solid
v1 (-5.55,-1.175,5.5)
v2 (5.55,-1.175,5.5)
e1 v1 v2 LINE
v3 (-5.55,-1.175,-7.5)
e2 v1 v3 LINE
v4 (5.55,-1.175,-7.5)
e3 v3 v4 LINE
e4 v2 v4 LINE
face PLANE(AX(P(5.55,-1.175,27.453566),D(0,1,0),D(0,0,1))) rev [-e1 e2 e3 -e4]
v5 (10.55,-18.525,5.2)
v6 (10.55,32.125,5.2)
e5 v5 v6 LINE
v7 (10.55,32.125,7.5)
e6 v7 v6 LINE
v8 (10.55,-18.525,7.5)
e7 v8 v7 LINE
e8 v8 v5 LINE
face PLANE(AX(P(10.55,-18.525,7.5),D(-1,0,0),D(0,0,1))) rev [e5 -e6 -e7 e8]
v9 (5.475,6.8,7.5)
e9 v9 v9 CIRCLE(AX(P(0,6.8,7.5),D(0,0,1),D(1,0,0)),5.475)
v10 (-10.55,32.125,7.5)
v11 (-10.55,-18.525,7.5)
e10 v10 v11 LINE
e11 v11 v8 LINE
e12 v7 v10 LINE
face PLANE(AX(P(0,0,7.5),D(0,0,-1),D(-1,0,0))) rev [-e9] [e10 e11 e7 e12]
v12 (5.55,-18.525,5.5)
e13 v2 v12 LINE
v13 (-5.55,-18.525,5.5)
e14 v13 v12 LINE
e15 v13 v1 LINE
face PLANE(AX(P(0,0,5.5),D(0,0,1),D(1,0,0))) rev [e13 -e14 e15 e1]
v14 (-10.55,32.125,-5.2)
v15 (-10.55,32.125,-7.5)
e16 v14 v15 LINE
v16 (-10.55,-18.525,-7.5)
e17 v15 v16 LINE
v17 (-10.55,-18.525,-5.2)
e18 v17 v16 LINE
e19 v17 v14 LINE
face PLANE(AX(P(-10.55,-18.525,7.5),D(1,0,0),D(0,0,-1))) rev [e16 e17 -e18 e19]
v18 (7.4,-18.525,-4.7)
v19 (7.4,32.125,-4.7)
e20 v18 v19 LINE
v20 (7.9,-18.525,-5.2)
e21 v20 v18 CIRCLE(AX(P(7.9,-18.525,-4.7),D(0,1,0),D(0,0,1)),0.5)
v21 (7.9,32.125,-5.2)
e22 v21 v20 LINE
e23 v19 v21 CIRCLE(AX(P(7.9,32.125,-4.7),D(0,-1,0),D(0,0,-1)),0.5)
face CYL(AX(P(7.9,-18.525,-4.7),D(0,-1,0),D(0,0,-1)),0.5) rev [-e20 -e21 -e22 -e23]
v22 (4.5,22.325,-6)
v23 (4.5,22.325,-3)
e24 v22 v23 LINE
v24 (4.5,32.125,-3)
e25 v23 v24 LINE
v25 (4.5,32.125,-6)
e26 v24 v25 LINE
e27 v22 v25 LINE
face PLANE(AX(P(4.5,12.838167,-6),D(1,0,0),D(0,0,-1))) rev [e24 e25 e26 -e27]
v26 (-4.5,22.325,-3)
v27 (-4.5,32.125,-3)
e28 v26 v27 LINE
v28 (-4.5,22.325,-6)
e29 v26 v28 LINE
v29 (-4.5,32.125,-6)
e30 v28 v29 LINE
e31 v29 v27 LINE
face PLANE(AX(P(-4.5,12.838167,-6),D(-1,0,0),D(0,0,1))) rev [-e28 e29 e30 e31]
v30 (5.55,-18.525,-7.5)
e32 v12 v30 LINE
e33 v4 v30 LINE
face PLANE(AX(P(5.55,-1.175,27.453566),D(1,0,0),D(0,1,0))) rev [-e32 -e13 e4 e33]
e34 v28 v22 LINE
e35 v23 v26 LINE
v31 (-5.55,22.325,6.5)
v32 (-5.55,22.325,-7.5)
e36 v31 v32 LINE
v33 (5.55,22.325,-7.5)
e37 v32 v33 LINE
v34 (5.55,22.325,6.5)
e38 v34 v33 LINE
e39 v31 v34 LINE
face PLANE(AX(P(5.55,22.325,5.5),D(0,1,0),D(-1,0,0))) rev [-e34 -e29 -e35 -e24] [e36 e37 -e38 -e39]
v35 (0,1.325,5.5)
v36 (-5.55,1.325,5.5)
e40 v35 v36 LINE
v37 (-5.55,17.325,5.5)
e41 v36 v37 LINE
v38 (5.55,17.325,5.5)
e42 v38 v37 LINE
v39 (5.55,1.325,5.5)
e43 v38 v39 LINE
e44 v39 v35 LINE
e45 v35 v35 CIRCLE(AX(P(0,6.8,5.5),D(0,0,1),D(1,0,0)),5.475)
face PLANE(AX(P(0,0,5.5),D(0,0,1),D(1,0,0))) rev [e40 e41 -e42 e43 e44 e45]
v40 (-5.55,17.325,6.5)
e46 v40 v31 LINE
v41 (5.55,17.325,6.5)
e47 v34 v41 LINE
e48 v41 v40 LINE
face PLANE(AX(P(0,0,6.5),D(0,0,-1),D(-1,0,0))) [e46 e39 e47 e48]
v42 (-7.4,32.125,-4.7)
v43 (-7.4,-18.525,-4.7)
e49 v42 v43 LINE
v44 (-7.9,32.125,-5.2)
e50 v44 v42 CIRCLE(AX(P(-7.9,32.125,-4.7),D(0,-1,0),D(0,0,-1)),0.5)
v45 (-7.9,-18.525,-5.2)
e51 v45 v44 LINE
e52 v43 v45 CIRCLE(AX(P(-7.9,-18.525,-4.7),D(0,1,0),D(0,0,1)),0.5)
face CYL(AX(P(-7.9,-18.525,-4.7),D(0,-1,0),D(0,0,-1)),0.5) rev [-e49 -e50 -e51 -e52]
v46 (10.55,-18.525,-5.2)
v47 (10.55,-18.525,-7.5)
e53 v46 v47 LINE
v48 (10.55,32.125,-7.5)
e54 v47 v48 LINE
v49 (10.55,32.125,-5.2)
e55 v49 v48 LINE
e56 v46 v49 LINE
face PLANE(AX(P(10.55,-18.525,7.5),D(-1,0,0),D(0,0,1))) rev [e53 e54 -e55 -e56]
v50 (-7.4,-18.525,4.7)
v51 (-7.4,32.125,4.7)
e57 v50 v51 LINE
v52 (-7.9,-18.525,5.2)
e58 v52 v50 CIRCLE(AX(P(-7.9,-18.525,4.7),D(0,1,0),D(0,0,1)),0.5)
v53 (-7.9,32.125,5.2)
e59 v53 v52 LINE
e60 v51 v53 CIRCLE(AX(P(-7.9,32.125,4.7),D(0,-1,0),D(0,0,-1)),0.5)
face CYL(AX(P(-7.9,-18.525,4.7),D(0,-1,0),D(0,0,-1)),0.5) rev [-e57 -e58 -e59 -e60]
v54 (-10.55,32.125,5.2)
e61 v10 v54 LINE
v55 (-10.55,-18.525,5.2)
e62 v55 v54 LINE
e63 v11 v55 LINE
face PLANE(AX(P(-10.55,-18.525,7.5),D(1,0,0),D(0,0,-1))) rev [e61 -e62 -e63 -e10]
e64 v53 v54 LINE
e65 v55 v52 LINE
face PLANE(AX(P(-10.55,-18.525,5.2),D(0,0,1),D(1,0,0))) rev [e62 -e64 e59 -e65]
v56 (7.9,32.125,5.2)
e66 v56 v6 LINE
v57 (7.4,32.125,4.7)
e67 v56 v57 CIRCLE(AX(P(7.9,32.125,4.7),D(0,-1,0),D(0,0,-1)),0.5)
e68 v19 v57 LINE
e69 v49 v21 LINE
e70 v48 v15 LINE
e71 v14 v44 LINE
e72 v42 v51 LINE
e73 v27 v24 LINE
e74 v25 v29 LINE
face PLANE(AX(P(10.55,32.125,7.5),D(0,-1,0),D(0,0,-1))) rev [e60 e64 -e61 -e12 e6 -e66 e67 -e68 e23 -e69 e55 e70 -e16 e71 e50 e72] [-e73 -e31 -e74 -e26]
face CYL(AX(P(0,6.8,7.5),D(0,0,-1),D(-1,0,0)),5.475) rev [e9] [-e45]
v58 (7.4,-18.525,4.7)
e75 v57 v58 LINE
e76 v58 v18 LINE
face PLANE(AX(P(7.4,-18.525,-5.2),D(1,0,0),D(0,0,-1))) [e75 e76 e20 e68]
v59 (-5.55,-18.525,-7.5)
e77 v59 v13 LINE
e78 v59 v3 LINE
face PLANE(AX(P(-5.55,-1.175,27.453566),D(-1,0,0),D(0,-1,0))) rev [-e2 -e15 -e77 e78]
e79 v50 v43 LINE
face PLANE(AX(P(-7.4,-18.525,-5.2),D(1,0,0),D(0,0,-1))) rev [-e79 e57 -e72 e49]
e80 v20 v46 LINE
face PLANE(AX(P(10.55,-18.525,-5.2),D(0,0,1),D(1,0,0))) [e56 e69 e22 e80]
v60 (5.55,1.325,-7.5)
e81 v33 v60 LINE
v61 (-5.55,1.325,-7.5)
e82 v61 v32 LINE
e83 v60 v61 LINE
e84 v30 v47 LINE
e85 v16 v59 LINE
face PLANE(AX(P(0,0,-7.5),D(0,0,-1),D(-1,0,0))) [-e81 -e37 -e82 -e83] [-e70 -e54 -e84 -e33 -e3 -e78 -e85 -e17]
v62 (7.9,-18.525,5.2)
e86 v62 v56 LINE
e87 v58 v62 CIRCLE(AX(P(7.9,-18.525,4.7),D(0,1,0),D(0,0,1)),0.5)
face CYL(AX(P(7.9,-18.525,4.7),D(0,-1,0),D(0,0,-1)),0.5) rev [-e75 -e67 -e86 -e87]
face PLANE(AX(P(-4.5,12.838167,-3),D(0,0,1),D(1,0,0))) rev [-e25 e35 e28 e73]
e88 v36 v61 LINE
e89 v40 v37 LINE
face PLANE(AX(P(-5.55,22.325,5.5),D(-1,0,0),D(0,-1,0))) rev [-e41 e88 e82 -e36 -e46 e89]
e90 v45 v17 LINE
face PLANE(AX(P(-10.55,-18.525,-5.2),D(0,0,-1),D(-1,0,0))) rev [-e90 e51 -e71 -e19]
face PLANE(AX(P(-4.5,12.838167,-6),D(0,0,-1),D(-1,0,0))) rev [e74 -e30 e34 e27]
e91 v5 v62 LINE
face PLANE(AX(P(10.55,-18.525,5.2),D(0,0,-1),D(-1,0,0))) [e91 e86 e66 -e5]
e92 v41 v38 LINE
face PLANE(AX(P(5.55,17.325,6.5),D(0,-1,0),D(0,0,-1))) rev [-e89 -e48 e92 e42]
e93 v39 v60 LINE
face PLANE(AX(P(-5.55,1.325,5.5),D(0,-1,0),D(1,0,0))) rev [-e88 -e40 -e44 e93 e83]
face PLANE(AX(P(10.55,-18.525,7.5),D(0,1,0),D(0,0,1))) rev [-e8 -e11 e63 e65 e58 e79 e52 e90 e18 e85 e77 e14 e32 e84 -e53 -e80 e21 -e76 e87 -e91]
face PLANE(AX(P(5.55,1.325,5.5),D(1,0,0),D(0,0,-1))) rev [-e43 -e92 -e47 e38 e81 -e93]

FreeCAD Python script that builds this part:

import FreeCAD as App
import Part
import Sketcher

V = App.Vector
Q = App.Units.Quantity


def edges_at(feature, points):
    """Names of the edges that pass closest to the given points."""
    edges = feature.Shape.Edges
    near = lambda p: min(range(len(edges)), key=lambda i: edges[i].distToShape(Part.Vertex(*p))[0])
    return sorted({f"Edge{near(p) + 1}" for p in points})


def add_polygon(sketch, points):
    """Adds a closed chain of lines whose ends are joined by coincident constraints."""
    first, n = sketch.GeometryCount, len(points)
    for a, b in zip(points, points[1:] + points[:1]):
        sketch.addGeometry(Part.LineSegment(App.Vector(*a, 0), App.Vector(*b, 0)), False)
    for i in range(n):
        sketch.addConstraint(Sketcher.Constraint("Coincident", first + i, 2, first + (i + 1) % n, 1))

doc = App.newDocument("Part")
params = doc.addObject("Spreadsheet::Sheet", "Params")
for row, (alias, value) in enumerate([
    ("sketch1_diameter", "10.95 mm"),
    ("sketch1_width", "21.1 mm"),
    ("sketch1_height", "50.65 mm"),
    ("pad1_length", "15 mm"),
    ("sketch2_height", "10.4 mm"),
    ("sketch2_width", "3.15 mm"),
    ("pocket1_length", "106.555727 mm"),
    ("fillet_radius", "0.5 mm"),
    ("sketch3_height", "21 mm"),
    ("sketch3_width", "11.1 mm"),
    ("pocket2_length", "13 mm"),
    ("sketch4_width", "11.1 mm"),
    ("pocket3_length", "13 mm"),
    ("sketch5_height", "5 mm"),
    ("sketch5_width", "11.1 mm"),
    ("pocket4_length", "1 mm"),
    ("sketch6_width", "9 mm"),
    ("sketch6_height", "3 mm"),
    ("pocket5_length", "9.8 mm"),
], start=1):
    params.set(f"A{row}", alias)
    params.set(f"B{row}", "=" + value)
    params.setAlias(f"B{row}", alias)

body = doc.addObject("PartDesign::Body", "Body")

sketch1 = doc.addObject("Sketcher::SketchObject", "Sketch")
body.addObject(sketch1)
sketch1.AttachmentSupport = (doc.XY_Plane, [""])
sketch1.MapMode = "FlatFace"
add_polygon(sketch1, [(-11, 32), (-11, -19), (11, -19), (11, 32)])
sketch1.addGeometry(Part.Circle(V(0, 7, 0), V(0, 0, 1), 5), False)
sketch1.addConstraint([
    Sketcher.Constraint("Vertical", 0),
    Sketcher.Constraint("Horizontal", 1),
    Sketcher.Constraint("Vertical", 2),
    Sketcher.Constraint("Horizontal", 3),
    Sketcher.Constraint("PointOnObject", 4, 3, -2),
    Sketcher.Constraint("Diameter", 4, Q("10.95 mm")),
    Sketcher.Constraint("DistanceX", 1, 1, 1, 2, Q("21.1 mm")),
    Sketcher.Constraint("DistanceY", 0, 2, 0, 1, Q("50.65 mm")),
    Sketcher.Constraint("DistanceY", -1, 1, 4, 3, Q("6.8 mm")),
    Sketcher.Constraint("DistanceX", 0, 2, -1, 1, Q("10.55 mm")),
    Sketcher.Constraint("DistanceY", 0, 2, -1, 1, Q("18.525 mm")),
])
sketch1.setExpression("Constraints[9]", "Params.sketch1_diameter")
sketch1.setExpression("Constraints[10]", "Params.sketch1_width")
sketch1.setExpression("Constraints[11]", "Params.sketch1_height")
pad1 = doc.addObject("PartDesign::Pad", "Pad")
body.addObject(pad1)
pad1.Profile = sketch1
pad1.setExpression("Length", "Params.pad1_length")
pad1.Midplane = True

sketch2 = doc.addObject("Sketcher::SketchObject", "Sketch001")
body.addObject(sketch2)
sketch2.AttachmentSupport = (doc.XZ_Plane, [""])
sketch2.MapMode = "FlatFace"
sketch2.AttachmentOffset = App.Placement(V(0, 0, -32.125), App.Rotation())
add_polygon(sketch2, [(-10.6, -5.2), (-10.6, 5.2), (-7.4, 5.2), (-7.4, -5.2)])
sketch2.addConstraint([
    Sketcher.Constraint("Vertical", 0),
    Sketcher.Constraint("Horizontal", 1),
    Sketcher.Constraint("Vertical", 2),
    Sketcher.Constraint("Horizontal", 3),
    Sketcher.Constraint("DistanceY", 0, 1, 0, 2, Q("10.4 mm")),
    Sketcher.Constraint("DistanceX", 1, 1, 1, 2, Q("3.15 mm")),
    Sketcher.Constraint("DistanceY", -1, 1, 0, 2, Q("5.2 mm")),
    Sketcher.Constraint("DistanceX", 1, 2, -1, 1, Q("7.4 mm")),
])
sketch2.setExpression("Constraints[8]", "Params.sketch2_height")
sketch2.setExpression("Constraints[9]", "Params.sketch2_width")
pocket1 = doc.addObject("PartDesign::Pocket", "Pocket")
body.addObject(pocket1)
pocket1.Profile = sketch2
pocket1.setExpression("Length", "Params.pocket1_length")
pocket1.Midplane = True
doc.recompute()

mirrored = doc.addObject("PartDesign::Mirrored", "Mirrored")
body.addObject(mirrored)
mirrored.Originals = [pocket1]
mirrored.MirrorPlane = (doc.YZ_Plane, [""])
body.Tip = mirrored
doc.recompute()

fillet = doc.addObject("PartDesign::Fillet", "Fillet")
body.addObject(fillet)
fillet.Base = (mirrored, edges_at(mirrored, [
    (-7.4, 6.8, -5.2),
    (-7.4, 6.8, 5.2),
    (7.4, 6.8, 5.2),
    (7.4, 6.8, -5.2),
]))
fillet.setExpression("Radius", "Params.fillet_radius")

sketch3 = doc.addObject("Sketcher::SketchObject", "Sketch002")
body.addObject(sketch3)
sketch3.AttachmentSupport = (doc.XY_Plane, [""])
sketch3.MapMode = "FlatFace"
sketch3.AttachmentOffset = App.Placement(V(0, 0, -7.5), App.Rotation())
add_polygon(sketch3, [(6, 22), (6, 1), (-6, 1), (-6, 22)])
sketch3.addConstraint([
    Sketcher.Constraint("Vertical", 0),
    Sketcher.Constraint("Horizontal", 1),
    Sketcher.Constraint("Vertical", 2),
    Sketcher.Constraint("Horizontal", 3),
    Sketcher.Constraint("DistanceY", 0, 2, 0, 1, Q("21 mm")),
    Sketcher.Constraint("DistanceX", 1, 2, 1, 1, Q("11.1 mm")),
    Sketcher.Constraint("DistanceX", -1, 1, 0, 2, Q("5.55 mm")),
    Sketcher.Constraint("DistanceY", -1, 1, 0, 2, Q("1.325 mm")),
])
sketch3.setExpression("Constraints[8]", "Params.sketch3_height")
sketch3.setExpression("Constraints[9]", "Params.sketch3_width")
pocket2 = doc.addObject("PartDesign::Pocket", "Pocket001")
body.addObject(pocket2)
pocket2.Profile = sketch3
pocket2.setExpression("Length", "Params.pocket2_length")
pocket2.Reversed = True

sketch4 = doc.addObject("Sketcher::SketchObject", "Sketch003")
body.addObject(sketch4)
sketch4.AttachmentSupport = (doc.XY_Plane, [""])
sketch4.MapMode = "FlatFace"
sketch4.AttachmentOffset = App.Placement(V(0, 0, -7.5), App.Rotation())
add_polygon(sketch4, [(6, -1), (6, -20), (-6, -20), (-6, -1)])
sketch4.addConstraint([
    Sketcher.Constraint("Vertical", 0),
    Sketcher.Constraint("Horizontal", 1),
    Sketcher.Constraint("Vertical", 2),
    Sketcher.Constraint("Horizontal", 3),
    Sketcher.Constraint("DistanceX", 1, 2, 1, 1, Q("11.1 mm")),
    Sketcher.Constraint("DistanceX", -1, 1, 0, 2, Q("5.55 mm")),
    Sketcher.Constraint("DistanceY", 2, 2, -1, 1, Q("1.175 mm")),
    Sketcher.Constraint("DistanceY", 0, 2, 0, 1, Q("18.940672 mm")),
])
sketch4.setExpression("Constraints[8]", "Params.sketch4_width")
pocket3 = doc.addObject("PartDesign::Pocket", "Pocket002")
body.addObject(pocket3)
pocket3.Profile = sketch4
pocket3.setExpression("Length", "Params.pocket3_length")
pocket3.Reversed = True

sketch5 = doc.addObject("Sketcher::SketchObject", "Sketch004")
body.addObject(sketch5)
sketch5.AttachmentSupport = (doc.XY_Plane, [""])
sketch5.MapMode = "FlatFace"
sketch5.AttachmentOffset = App.Placement(V(0, 0, 5.5), App.Rotation())
add_polygon(sketch5, [(6, 22), (6, 17), (-6, 17), (-6, 22)])
sketch5.addConstraint([
    Sketcher.Constraint("Vertical", 0),
    Sketcher.Constraint("Horizontal", 1),
    Sketcher.Constraint("Vertical", 2),
    Sketcher.Constraint("Horizontal", 3),
    Sketcher.Constraint("DistanceY", 0, 2, 0, 1, Q("5 mm")),
    Sketcher.Constraint("DistanceX", 1, 2, 1, 1, Q("11.1 mm")),
    Sketcher.Constraint("DistanceX", -1, 1, 0, 2, Q("5.55 mm")),
    Sketcher.Constraint("DistanceY", -1, 1, 0, 2, Q("17.325 mm")),
])
sketch5.setExpression("Constraints[8]", "Params.sketch5_height")
sketch5.setExpression("Constraints[9]", "Params.sketch5_width")
pocket4 = doc.addObject("PartDesign::Pocket", "Pocket003")
body.addObject(pocket4)
pocket4.Profile = sketch5
pocket4.setExpression("Length", "Params.pocket4_length")
pocket4.Reversed = True

sketch6 = doc.addObject("Sketcher::SketchObject", "Sketch005")
body.addObject(sketch6)
sketch6.AttachmentSupport = (doc.XZ_Plane, [""])
sketch6.MapMode = "FlatFace"
sketch6.AttachmentOffset = App.Placement(V(0, 0, -32.125), App.Rotation())
add_polygon(sketch6, [(-4.5, -6), (-4.5, -3), (4.5, -3), (4.5, -6)])
sketch6.addConstraint([
    Sketcher.Constraint("Vertical", 0),
    Sketcher.Constraint("Horizontal", 1),
    Sketcher.Constraint("Vertical", 2),
    Sketcher.Constraint("Horizontal", 3),
    Sketcher.Constraint("DistanceX", 1, 1, 1, 2, Q("9 mm")),
    Sketcher.Constraint("DistanceY", 0, 1, 0, 2, Q("3 mm")),
    Sketcher.Constraint("DistanceY", 0, 2, -1, 1, Q("3 mm")),
    Sketcher.Constraint("DistanceX", 0, 2, -1, 1, Q("4.5 mm")),
])
sketch6.setExpression("Constraints[8]", "Params.sketch6_width")
sketch6.setExpression("Constraints[9]", "Params.sketch6_height")
pocket5 = doc.addObject("PartDesign::Pocket", "Pocket004")
body.addObject(pocket5)
pocket5.Profile = sketch6
pocket5.setExpression("Length", "Params.pocket5_length")
pocket5.Reversed = True

doc.recompute()
